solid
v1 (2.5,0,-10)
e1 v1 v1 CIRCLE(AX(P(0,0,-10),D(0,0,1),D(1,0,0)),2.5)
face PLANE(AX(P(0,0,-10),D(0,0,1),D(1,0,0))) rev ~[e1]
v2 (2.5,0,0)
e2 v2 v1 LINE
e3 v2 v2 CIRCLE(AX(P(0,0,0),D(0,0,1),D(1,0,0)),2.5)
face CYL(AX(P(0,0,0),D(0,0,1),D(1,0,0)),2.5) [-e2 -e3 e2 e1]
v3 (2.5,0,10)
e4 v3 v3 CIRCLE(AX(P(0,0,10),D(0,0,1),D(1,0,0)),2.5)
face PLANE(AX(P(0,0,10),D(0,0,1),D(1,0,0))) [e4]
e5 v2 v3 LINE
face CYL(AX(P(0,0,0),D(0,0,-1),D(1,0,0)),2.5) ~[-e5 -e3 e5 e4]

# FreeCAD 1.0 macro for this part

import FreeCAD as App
import Part
import Sketcher
from FreeCAD import Vector

doc = App.newDocument("Part")
params = doc.addObject("Spreadsheet::Sheet", "Params")
for row, (alias, value) in enumerate([
    ("sketch1_diameter", "5 mm"),
    ("pad1_length", "20 mm"),
], start=1):
    params.set(f"A{row}", alias)
    params.set(f"B{row}", "=" + value)
    params.setAlias(f"B{row}", alias)

body = doc.addObject("PartDesign::Body", "Body")

# Sketch on XY plane
sketch1 = body.newObject("Sketcher::SketchObject", "Sketch")
sketch1.AttachmentSupport = (doc.getObject("XY_Plane"), [""])
sketch1.MapMode = "FlatFace"
sketch1.addGeometry(Part.Circle(Vector(0, 0, 0), Vector(0, 0, 1), 2.5), False)
sketch1.addConstraint([
    Sketcher.Constraint("Coincident", 0, 3, -1, 1),
    Sketcher.Constraint("Diameter", 0, 5.0),
])
sketch1.setExpression("Constraints[1]", "Params.sketch1_diameter")
pad1 = body.newObject("PartDesign::Pad", "Pad")
pad1.Profile = sketch1
pad1.setExpression("Length", "Params.pad1_length")
pad1.Midplane = True

doc.recompute()
